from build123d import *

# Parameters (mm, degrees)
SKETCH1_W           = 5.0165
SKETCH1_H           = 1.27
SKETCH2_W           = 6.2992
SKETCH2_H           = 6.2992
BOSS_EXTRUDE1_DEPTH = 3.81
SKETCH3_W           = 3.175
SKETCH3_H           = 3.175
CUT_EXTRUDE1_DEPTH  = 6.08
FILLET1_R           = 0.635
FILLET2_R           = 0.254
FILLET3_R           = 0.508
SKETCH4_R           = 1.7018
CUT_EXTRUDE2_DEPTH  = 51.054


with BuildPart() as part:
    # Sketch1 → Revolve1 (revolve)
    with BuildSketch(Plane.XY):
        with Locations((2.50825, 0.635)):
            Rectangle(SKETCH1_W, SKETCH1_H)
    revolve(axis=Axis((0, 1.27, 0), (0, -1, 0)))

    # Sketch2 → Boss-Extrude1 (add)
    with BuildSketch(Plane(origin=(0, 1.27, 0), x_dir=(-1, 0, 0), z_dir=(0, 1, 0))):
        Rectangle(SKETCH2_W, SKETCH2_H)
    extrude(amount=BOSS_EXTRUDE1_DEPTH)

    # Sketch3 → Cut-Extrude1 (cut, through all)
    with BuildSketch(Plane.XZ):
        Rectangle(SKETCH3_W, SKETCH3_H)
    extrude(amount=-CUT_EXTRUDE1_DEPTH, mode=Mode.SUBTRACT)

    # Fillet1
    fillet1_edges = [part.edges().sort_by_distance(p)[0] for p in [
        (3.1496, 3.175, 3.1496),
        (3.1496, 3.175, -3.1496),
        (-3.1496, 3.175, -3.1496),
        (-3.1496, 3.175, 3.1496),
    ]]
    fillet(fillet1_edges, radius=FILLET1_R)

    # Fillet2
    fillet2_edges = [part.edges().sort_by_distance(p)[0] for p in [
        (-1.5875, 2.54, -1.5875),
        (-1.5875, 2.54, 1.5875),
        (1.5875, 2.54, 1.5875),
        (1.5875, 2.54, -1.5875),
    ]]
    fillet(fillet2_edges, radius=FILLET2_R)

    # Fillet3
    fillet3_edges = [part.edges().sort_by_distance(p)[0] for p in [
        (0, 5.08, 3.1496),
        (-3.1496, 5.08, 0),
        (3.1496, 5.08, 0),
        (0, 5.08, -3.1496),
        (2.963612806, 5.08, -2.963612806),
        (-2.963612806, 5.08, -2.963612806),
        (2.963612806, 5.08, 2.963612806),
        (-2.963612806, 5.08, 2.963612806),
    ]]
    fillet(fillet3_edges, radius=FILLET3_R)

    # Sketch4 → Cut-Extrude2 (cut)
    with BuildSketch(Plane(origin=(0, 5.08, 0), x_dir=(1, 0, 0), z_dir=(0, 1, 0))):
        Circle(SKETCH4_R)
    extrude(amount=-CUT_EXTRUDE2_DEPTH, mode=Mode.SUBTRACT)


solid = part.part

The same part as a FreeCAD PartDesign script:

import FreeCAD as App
import Part
import Sketcher

V = App.Vector
Q = App.Units.Quantity


def edges_at(feature, points):
    """Names of the edges that pass closest to the given points."""
    edges = feature.Shape.Edges
    near = lambda p: min(range(len(edges)), key=lambda i: edges[i].distToShape(Part.Vertex(*p))[0])
    return sorted({f"Edge{near(p) + 1}" for p in points})


def add_polygon(sketch, points):
    """Adds a closed chain of lines whose ends are joined by coincident constraints."""
    first, n = sketch.GeometryCount, len(points)
    for a, b in zip(points, points[1:] + points[:1]):
        sketch.addGeometry(Part.LineSegment(App.Vector(*a, 0), App.Vector(*b, 0)), False)
    for i in range(n):
        sketch.addConstraint(Sketcher.Constraint("Coincident", first + i, 2, first + (i + 1) % n, 1))

doc = App.newDocument("Part")
body = doc.addObject("PartDesign::Body", "Body")

# Sketch on XY plane
sketch1 = body.newObject("Sketcher::SketchObject", "Sketch")
sketch1.AttachmentSupport = (doc.getObject("XY_Plane"), [""])
sketch1.MapMode = "FlatFace"
add_polygon(sketch1, [(0, 1.3), (0, 0), (5, 0), (5, 1.3)])  # lines 0-3
sketch1.addConstraint([
    Sketcher.Constraint("Vertical", 0),
    Sketcher.Constraint("Horizontal", 1),
    Sketcher.Constraint("Vertical", 2),
    Sketcher.Constraint("Horizontal", 3),
    Sketcher.Constraint("Coincident", 0, 2, -1, 1),
    Sketcher.Constraint("DistanceY", 0, 2, 0, 1, Q("0.05 in")),
    Sketcher.Constraint("DistanceX", 1, 1, 1, 2, Q("0.1975 in")),
])
revolution = body.newObject("PartDesign::Revolution", "Revolution")
revolution.Profile = sketch1
revolution.ReferenceAxis = (sketch1, ["V_Axis"])
revolution.Angle = 360

# Sketch on XZ plane
sketch2 = body.newObject("Sketcher::SketchObject", "Sketch001")
sketch2.AttachmentSupport = (doc.getObject("XZ_Plane"), [""])
sketch2.MapMode = "FlatFace"
sketch2.AttachmentOffset = App.Placement(V(0, 0, -0.05 * 25.4), App.Rotation())
add_polygon(sketch2, [(3, 3), (3, -3), (-3, -3), (-3, 3)])  # lines 0-3
sketch2.addConstraint([
    Sketcher.Constraint("Vertical", 0),
    Sketcher.Constraint("Horizontal", 1),
    Sketcher.Constraint("Vertical", 2),
    Sketcher.Constraint("Horizontal", 3),
    Sketcher.Constraint("Symmetric", 0, 2, 2, 2, -1, 1),
    Sketcher.Constraint("Equal", 3, 0),
    Sketcher.Constraint("DistanceX", 1, 2, 1, 1, Q("0.248 in")),
])
pad1 = body.newObject("PartDesign::Pad", "Pad")
pad1.Profile = sketch2
pad1.Length = Q("0.15 in")
pad1.Reversed = True

# Sketch on XZ plane
sketch3 = body.newObject("Sketcher::SketchObject", "Sketch002")
sketch3.AttachmentSupport = (doc.getObject("XZ_Plane"), [""])
sketch3.MapMode = "FlatFace"
add_polygon(sketch3, [(-1.6, 1.6), (-1.6, -1.6), (1.6, -1.6), (1.6, 1.6)])  # lines 0-3
sketch3.addConstraint([
    Sketcher.Constraint("Vertical", 0),
    Sketcher.Constraint("Horizontal", 1),
    Sketcher.Constraint("Vertical", 2),
    Sketcher.Constraint("Horizontal", 3),
    Sketcher.Constraint("Symmetric", 0, 2, 2, 2, -1, 1),
    Sketcher.Constraint("Equal", 3, 0),
    Sketcher.Constraint("DistanceX", 1, 1, 1, 2, Q("0.125 in")),
])
pocket1 = body.newObject("PartDesign::Pocket", "Pocket")
pocket1.Profile = sketch3
pocket1.Type = "ThroughAll"
doc.recompute()

fillet = body.newObject("PartDesign::Fillet", "Fillet")
fillet.Base = (pocket1, edges_at(pocket1, [
    (3.15, 3.175, 3.15),
    (3.15, 3.175, -3.15),
    (-3.15, 3.175, -3.15),
    (-3.15, 3.175, 3.15),
]))
fillet.Radius = Q("0.025 in")
doc.recompute()

fillet2 = body.newObject("PartDesign::Fillet", "Fillet001")
fillet2.Base = (fillet, edges_at(fillet, [
    (-1.587, 2.54, -1.587),
    (-1.587, 2.54, 1.587),
    (1.587, 2.54, 1.587),
    (1.587, 2.54, -1.587),
]))
fillet2.Radius = Q("0.01 in")
doc.recompute()

fillet3 = body.newObject("PartDesign::Fillet", "Fillet002")
fillet3.Base = (fillet2, edges_at(fillet2, [
    (0, 5.08, 3.15),
    (-3.15, 5.08, 0),
    (3.15, 5.08, 0),
    (0, 5.08, -3.15),
    (2.964, 5.08, -2.964),
    (-2.964, 5.08, -2.964),
    (2.964, 5.08, 2.964),
    (-2.964, 5.08, 2.964),
]))
fillet3.Radius = Q("0.02 in")

# Sketch on XZ plane
sketch4 = body.newObject("Sketcher::SketchObject", "Sketch003")
sketch4.AttachmentSupport = (doc.getObject("XZ_Plane"), [""])
sketch4.MapMode = "FlatFace"
sketch4.AttachmentOffset = App.Placement(V(0, 0, -0.2 * 25.4), App.Rotation())
sketch4.addGeometry(Part.Circle(V(0, 0, 0), V(0, 0, 1), 1.7), False)
sketch4.addConstraint([
    Sketcher.Constraint("Coincident", 0, 3, -1, 1),
    Sketcher.Constraint("Diameter", 0, Q("0.134 in")),
])
pocket2 = body.newObject("PartDesign::Pocket", "Pocket001")
pocket2.Profile = sketch4
pocket2.Length = Q("2.01 in")
pocket2.Reversed = True

doc.recompute()
